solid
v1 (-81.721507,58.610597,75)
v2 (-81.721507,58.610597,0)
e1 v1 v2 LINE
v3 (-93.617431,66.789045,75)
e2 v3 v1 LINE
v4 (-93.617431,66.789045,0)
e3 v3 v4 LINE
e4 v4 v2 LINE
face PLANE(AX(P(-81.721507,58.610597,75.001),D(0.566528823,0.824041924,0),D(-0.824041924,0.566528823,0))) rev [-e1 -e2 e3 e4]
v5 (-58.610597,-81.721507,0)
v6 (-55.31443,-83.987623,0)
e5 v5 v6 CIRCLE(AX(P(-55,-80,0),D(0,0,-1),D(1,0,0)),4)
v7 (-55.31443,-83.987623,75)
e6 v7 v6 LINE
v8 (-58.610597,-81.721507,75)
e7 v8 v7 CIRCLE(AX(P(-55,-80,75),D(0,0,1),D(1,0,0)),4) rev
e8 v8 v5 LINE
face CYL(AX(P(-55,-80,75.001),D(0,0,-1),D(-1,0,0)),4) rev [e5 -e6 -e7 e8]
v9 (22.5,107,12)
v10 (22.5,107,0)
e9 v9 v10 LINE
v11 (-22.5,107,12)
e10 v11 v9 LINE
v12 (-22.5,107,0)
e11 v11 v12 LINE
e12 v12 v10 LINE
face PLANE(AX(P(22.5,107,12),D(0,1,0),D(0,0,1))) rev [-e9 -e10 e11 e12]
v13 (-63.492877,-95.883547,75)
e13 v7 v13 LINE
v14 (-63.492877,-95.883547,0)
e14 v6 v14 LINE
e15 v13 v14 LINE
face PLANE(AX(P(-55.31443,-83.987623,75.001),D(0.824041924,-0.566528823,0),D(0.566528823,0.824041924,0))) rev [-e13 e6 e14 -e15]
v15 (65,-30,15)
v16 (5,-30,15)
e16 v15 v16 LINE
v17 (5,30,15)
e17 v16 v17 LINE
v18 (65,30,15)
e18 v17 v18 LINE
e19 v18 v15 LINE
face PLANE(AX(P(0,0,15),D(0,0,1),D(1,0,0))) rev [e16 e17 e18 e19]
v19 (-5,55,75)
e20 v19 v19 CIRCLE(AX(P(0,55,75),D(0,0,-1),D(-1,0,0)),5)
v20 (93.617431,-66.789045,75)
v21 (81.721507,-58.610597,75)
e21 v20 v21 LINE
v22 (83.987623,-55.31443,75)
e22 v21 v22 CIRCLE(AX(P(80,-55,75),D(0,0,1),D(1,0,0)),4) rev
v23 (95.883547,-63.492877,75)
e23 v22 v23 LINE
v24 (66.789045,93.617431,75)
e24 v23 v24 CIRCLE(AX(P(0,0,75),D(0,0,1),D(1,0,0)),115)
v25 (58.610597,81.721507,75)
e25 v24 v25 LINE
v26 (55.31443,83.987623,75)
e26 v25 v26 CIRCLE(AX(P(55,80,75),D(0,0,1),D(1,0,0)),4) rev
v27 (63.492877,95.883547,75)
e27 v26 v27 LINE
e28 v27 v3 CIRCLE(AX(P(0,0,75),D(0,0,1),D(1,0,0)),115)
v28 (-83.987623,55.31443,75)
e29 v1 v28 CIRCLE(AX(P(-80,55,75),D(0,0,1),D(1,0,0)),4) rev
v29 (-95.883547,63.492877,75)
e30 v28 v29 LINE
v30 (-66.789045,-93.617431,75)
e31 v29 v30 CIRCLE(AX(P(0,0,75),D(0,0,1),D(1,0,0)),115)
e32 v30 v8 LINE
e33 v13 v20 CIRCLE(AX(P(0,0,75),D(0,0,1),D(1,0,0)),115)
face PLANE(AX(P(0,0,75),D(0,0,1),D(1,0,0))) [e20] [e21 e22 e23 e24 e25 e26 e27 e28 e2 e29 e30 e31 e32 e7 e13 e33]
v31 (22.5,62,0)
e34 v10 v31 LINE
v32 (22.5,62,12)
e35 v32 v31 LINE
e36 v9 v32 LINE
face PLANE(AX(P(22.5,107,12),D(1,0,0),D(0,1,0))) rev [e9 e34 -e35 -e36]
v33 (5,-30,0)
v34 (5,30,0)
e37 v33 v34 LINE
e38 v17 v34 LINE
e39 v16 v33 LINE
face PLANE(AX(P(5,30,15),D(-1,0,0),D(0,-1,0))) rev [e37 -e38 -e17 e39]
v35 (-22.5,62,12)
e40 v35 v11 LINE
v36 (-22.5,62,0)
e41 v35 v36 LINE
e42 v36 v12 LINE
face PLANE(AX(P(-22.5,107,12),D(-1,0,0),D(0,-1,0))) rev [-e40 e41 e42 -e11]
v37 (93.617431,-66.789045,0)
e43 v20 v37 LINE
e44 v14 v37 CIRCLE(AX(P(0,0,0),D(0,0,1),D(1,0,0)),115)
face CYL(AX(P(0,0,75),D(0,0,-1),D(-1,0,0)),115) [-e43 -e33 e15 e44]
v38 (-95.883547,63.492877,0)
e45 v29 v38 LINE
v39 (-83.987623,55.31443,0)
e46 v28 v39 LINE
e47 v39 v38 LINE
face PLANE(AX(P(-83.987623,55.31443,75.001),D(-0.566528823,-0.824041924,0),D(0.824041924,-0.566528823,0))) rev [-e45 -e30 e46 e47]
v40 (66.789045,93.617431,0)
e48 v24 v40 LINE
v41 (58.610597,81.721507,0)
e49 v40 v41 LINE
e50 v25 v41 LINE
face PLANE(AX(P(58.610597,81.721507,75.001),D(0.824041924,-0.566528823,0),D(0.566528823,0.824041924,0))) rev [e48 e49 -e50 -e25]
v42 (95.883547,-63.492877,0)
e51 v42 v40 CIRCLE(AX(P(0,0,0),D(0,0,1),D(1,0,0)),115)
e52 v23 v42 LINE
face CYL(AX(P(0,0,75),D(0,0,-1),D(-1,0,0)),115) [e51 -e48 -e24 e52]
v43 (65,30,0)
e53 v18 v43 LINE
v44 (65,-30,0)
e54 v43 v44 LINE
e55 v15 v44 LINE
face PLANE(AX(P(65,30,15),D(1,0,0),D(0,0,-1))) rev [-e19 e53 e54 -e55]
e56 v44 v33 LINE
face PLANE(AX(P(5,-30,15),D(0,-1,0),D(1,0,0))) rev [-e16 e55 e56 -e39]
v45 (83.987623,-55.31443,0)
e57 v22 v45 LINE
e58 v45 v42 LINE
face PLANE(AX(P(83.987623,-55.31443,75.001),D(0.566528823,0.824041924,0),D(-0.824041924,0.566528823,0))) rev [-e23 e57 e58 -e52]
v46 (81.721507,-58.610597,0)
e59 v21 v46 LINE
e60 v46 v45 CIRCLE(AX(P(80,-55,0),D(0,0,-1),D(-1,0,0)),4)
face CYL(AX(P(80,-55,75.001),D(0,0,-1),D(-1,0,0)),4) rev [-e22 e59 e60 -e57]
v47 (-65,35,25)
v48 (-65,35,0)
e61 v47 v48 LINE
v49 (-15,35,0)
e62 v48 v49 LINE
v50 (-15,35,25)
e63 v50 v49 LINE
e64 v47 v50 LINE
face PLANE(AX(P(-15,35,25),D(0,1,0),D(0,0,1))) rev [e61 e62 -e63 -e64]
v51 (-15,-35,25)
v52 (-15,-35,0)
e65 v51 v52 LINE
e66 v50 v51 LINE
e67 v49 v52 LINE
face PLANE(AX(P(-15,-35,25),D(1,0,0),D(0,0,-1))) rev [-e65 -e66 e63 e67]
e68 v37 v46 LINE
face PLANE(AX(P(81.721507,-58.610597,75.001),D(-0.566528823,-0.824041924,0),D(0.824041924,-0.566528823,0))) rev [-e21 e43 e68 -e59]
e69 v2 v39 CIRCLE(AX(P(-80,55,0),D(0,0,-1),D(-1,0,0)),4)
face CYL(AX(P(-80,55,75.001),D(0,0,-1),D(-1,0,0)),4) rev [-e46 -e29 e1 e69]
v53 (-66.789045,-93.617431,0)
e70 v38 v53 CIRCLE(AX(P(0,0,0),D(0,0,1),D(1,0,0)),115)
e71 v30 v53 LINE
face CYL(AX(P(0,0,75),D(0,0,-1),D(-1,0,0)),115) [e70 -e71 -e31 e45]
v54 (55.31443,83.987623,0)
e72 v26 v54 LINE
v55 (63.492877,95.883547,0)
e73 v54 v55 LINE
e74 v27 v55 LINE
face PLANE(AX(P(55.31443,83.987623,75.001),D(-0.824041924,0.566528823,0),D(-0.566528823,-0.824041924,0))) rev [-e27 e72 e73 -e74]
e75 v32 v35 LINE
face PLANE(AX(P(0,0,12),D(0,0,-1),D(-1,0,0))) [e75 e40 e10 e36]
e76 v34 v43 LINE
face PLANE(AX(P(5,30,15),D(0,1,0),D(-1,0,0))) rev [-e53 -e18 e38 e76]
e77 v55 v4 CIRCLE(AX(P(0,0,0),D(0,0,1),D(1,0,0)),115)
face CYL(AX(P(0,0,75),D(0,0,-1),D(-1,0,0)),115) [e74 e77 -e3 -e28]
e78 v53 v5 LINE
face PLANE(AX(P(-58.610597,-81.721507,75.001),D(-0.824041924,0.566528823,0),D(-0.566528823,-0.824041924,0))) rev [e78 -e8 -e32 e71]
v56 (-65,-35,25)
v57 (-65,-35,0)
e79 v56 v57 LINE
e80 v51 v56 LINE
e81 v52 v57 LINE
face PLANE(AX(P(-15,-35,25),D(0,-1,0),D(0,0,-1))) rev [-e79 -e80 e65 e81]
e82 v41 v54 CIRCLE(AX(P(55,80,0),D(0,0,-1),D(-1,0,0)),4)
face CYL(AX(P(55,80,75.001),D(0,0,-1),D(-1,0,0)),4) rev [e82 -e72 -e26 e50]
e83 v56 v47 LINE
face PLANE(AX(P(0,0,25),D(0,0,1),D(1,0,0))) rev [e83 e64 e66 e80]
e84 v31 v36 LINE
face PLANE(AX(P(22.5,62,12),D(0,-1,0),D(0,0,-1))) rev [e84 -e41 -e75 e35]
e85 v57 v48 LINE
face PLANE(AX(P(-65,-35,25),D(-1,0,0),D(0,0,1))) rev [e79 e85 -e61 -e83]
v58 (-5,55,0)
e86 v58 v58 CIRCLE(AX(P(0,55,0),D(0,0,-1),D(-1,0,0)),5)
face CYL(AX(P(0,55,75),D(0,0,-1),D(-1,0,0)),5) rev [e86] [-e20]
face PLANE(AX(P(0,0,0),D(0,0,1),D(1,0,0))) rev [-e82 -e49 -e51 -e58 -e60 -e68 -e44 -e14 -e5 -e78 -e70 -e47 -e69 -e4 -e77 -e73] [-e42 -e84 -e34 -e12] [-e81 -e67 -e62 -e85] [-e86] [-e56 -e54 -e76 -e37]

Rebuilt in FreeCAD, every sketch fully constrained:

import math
import FreeCAD as App
import Part
import Sketcher
from FreeCAD import Vector

doc = App.newDocument("Part")
body = doc.addObject("PartDesign::Body", "Body")

# Sketch on XY plane
sketch1 = body.newObject("Sketcher::SketchObject", "Sketch")
sketch1.AttachmentSupport = (doc.getObject("XY_Plane"), [""])
sketch1.MapMode = "FlatFace"
sketch1.addGeometry(Part.Circle(Vector(0, 0, 0), Vector(0, 0, 1), 115), False)
sketch1.addConstraint([
    Sketcher.Constraint("Coincident", 0, 3, -1, 1),
    Sketcher.Constraint("Diameter", 0, 230.0),
])
pad1 = body.newObject("PartDesign::Pad", "Pad")
pad1.Profile = sketch1
pad1.Length = 75

# Sketch on XY plane
sketch2 = body.newObject("Sketcher::SketchObject", "Sketch001")
sketch2.AttachmentSupport = (doc.getObject("XY_Plane"), [""])
sketch2.MapMode = "FlatFace"
sketch2.addGeometry([
    Part.LineSegment(Vector(-66.8, -93.6, 0), Vector(-58.6, -81.7, 0)),
    Part.ArcOfCircle(Part.Circle(Vector(-55, -80, 0), Vector(0, 0, 1), 4), math.radians(-95), math.radians(205)),
    Part.LineSegment(Vector(-55.3, -84, 0), Vector(-63.5, -95.9, 0)),
    Part.ArcOfCircle(Part.Circle(Vector(0, 0, 0), Vector(0, 0, 1), 115), math.radians(-125.51), math.radians(-123.51)),
], False)
sketch2.addConstraint([
    Sketcher.Constraint("Coincident", 0, 2, 1, 2),
    Sketcher.Constraint("Coincident", 1, 1, 2, 1),
    Sketcher.Constraint("Coincident", 2, 2, 3, 2),
    Sketcher.Constraint("Coincident", 3, 1, 0, 1),
    Sketcher.Constraint("Coincident", 3, 3, -1, 1),
    Sketcher.Constraint("Parallel", 0, 2),
    Sketcher.Constraint("Equal", 0, 2),
    Sketcher.Constraint("Radius", 1, 4.0),
    Sketcher.Constraint("DistanceX", 1, 3, -1, 1, 55.0),
    Sketcher.Constraint("DistanceY", 1, 3, -1, 1, 80.0),
    Sketcher.Constraint("Radius", 3, 114.999998),
    Sketcher.Constraint("DistanceX", 1, 1, -1, 1, 55.31443),
    Sketcher.Constraint("DistanceY", 3, 1, -1, 1, 93.617431),
])
pocket1 = body.newObject("PartDesign::Pocket", "Pocket")
pocket1.Profile = sketch2
pocket1.Type = "UpToFirst"
pocket1.Reversed = True

# Sketch on XY plane
sketch3 = body.newObject("Sketcher::SketchObject", "Sketch002")
sketch3.AttachmentSupport = (doc.getObject("XY_Plane"), [""])
sketch3.MapMode = "FlatFace"
sketch3.addGeometry([
    Part.LineSegment(Vector(-93.6, 66.8, 0), Vector(-81.7, 58.6, 0)),
    Part.ArcOfCircle(Part.Circle(Vector(-80, 55, 0), Vector(0, 0, 1), 4), math.radians(175), math.radians(475)),
    Part.LineSegment(Vector(-84, 55.3, 0), Vector(-95.9, 63.5, 0)),
    Part.ArcOfCircle(Part.Circle(Vector(0, 0, 0), Vector(0, 0, 1), 115), math.radians(144.49), math.radians(146.49)),
], False)
sketch3.addConstraint([
    Sketcher.Constraint("Coincident", 0, 2, 1, 2),
    Sketcher.Constraint("Coincident", 1, 1, 2, 1),
    Sketcher.Constraint("Coincident", 2, 2, 3, 2),
    Sketcher.Constraint("Coincident", 3, 1, 0, 1),
    Sketcher.Constraint("Coincident", 3, 3, -1, 1),
    Sketcher.Constraint("Parallel", 0, 2),
    Sketcher.Constraint("Equal", 0, 2),
    Sketcher.Constraint("Radius", 1, 4.0),
    Sketcher.Constraint("DistanceX", 1, 3, -1, 1, 80.0),
    Sketcher.Constraint("DistanceY", -1, 1, 1, 3, 55.0),
    Sketcher.Constraint("Radius", 3, 114.999998),
    Sketcher.Constraint("DistanceY", -1, 1, 1, 1, 55.31443),
    Sketcher.Constraint("DistanceX", 3, 1, -1, 1, 93.617431),
])
pocket2 = body.newObject("PartDesign::Pocket", "Pocket001")
pocket2.Profile = sketch3
pocket2.Type = "UpToFirst"
pocket2.Reversed = True

# Sketch on XY plane
sketch4 = body.newObject("Sketcher::SketchObject", "Sketch003")
sketch4.AttachmentSupport = (doc.getObject("XY_Plane"), [""])
sketch4.MapMode = "FlatFace"
sketch4.addGeometry([
    Part.LineSegment(Vector(66.8, 93.6, 0), Vector(58.6, 81.7, 0)),
    Part.ArcOfCircle(Part.Circle(Vector(55, 80, 0), Vector(0, 0, 1), 4), math.radians(85), math.radians(385)),
    Part.LineSegment(Vector(55.3, 84, 0), Vector(63.5, 95.9, 0)),
    Part.ArcOfCircle(Part.Circle(Vector(0, 0, 0), Vector(0, 0, 1), 115), math.radians(54.49), math.radians(56.49)),
], False)
sketch4.addConstraint([
    Sketcher.Constraint("Coincident", 0, 2, 1, 2),
    Sketcher.Constraint("Coincident", 1, 1, 2, 1),
    Sketcher.Constraint("Coincident", 2, 2, 3, 2),
    Sketcher.Constraint("Coincident", 3, 1, 0, 1),
    Sketcher.Constraint("Coincident", 3, 3, -1, 1),
    Sketcher.Constraint("Parallel", 0, 2),
    Sketcher.Constraint("Equal", 0, 2),
    Sketcher.Constraint("Radius", 1, 4.0),
    Sketcher.Constraint("DistanceX", -1, 1, 1, 3, 55.0),
    Sketcher.Constraint("DistanceY", -1, 1, 1, 3, 80.0),
    Sketcher.Constraint("Radius", 3, 114.999998),
    Sketcher.Constraint("DistanceX", -1, 1, 1, 1, 55.31443),
    Sketcher.Constraint("DistanceY", -1, 1, 3, 1, 93.617431),
])
pocket3 = body.newObject("PartDesign::Pocket", "Pocket002")
pocket3.Profile = sketch4
pocket3.Type = "UpToFirst"
pocket3.Reversed = True

# Sketch on XY plane
sketch5 = body.newObject("Sketcher::SketchObject", "Sketch004")
sketch5.AttachmentSupport = (doc.getObject("XY_Plane"), [""])
sketch5.MapMode = "FlatFace"
sketch5.addGeometry([
    Part.LineSegment(Vector(93.6, -66.8, 0), Vector(81.7, -58.6, 0)),
    Part.ArcOfCircle(Part.Circle(Vector(80, -55, 0), Vector(0, 0, 1), 4), math.radians(-5), math.radians(295)),
    Part.LineSegment(Vector(84, -55.3, 0), Vector(95.9, -63.5, 0)),
    Part.ArcOfCircle(Part.Circle(Vector(0, 0, 0), Vector(0, 0, 1), 115), math.radians(-35.51), math.radians(-33.51)),
], False)
sketch5.addConstraint([
    Sketcher.Constraint("Coincident", 0, 2, 1, 2),
    Sketcher.Constraint("Coincident", 1, 1, 2, 1),
    Sketcher.Constraint("Coincident", 2, 2, 3, 2),
    Sketcher.Constraint("Coincident", 3, 1, 0, 1),
    Sketcher.Constraint("Coincident", 3, 3, -1, 1),
    Sketcher.Constraint("Parallel", 0, 2),
    Sketcher.Constraint("Equal", 0, 2),
    Sketcher.Constraint("Radius", 1, 4.0),
    Sketcher.Constraint("DistanceX", -1, 1, 1, 3, 80.0),
    Sketcher.Constraint("DistanceY", 1, 3, -1, 1, 55.0),
    Sketcher.Constraint("Radius", 3, 114.999998),
    Sketcher.Constraint("DistanceY", 1, 1, -1, 1, 55.31443),
    Sketcher.Constraint("DistanceX", -1, 1, 3, 1, 93.617431),
])
pocket4 = body.newObject("PartDesign::Pocket", "Pocket003")
pocket4.Profile = sketch5
pocket4.Type = "UpToFirst"
pocket4.Reversed = True

# Sketch on XY plane
sketch6 = body.newObject("Sketcher::SketchObject", "Sketch005")
sketch6.AttachmentSupport = (doc.getObject("XY_Plane"), [""])
sketch6.MapMode = "FlatFace"
sketch6.addGeometry([
    Part.LineSegment(Vector(65, 30, 0), Vector(65, -30, 0)),
    Part.LineSegment(Vector(65, -30, 0), Vector(5, -30, 0)),
    Part.LineSegment(Vector(5, -30, 0), Vector(5, 30, 0)),
    Part.LineSegment(Vector(5, 30, 0), Vector(65, 30, 0)),
], False)
sketch6.addConstraint([
    Sketcher.Constraint("Coincident", 0, 2, 1, 1),
    Sketcher.Constraint("Coincident", 1, 2, 2, 1),
    Sketcher.Constraint("Coincident", 2, 2, 3, 1),
    Sketcher.Constraint("Coincident", 3, 2, 0, 1),
    Sketcher.Constraint("Vertical", 0),
    Sketcher.Constraint("Horizontal", 1),
    Sketcher.Constraint("Vertical", 2),
    Sketcher.Constraint("Horizontal", 3),
    Sketcher.Constraint("Equal", 3, 0),
    Sketcher.Constraint("DistanceX", 1, 2, 1, 1, 60.0),
    Sketcher.Constraint("DistanceX", -1, 1, 0, 2, 65.0),
    Sketcher.Constraint("DistanceY", 0, 2, -1, 1, 30.0),
])
pocket5 = body.newObject("PartDesign::Pocket", "Pocket004")
pocket5.Profile = sketch6
pocket5.Length = 15
pocket5.Reversed = True

# Sketch on XY plane
sketch7 = body.newObject("Sketcher::SketchObject", "Sketch006")
sketch7.AttachmentSupport = (doc.getObject("XY_Plane"), [""])
sketch7.MapMode = "FlatFace"
sketch7.addGeometry([
    Part.LineSegment(Vector(-15, 35, 0), Vector(-15, -35, 0)),
    Part.LineSegment(Vector(-15, -35, 0), Vector(-65, -35, 0)),
    Part.LineSegment(Vector(-65, -35, 0), Vector(-65, 35, 0)),
    Part.LineSegment(Vector(-65, 35, 0), Vector(-15, 35, 0)),
], False)
sketch7.addConstraint([
    Sketcher.Constraint("Coincident", 0, 2, 1, 1),
    Sketcher.Constraint("Coincident", 1, 2, 2, 1),
    Sketcher.Constraint("Coincident", 2, 2, 3, 1),
    Sketcher.Constraint("Coincident", 3, 2, 0, 1),
    Sketcher.Constraint("Vertical", 0),
    Sketcher.Constraint("Horizontal", 1),
    Sketcher.Constraint("Vertical", 2),
    Sketcher.Constraint("Horizontal", 3),
    Sketcher.Constraint("DistanceX", 1, 2, 1, 1, 50.0),
    Sketcher.Constraint("DistanceY", 0, 2, 0, 1, 70.0),
    Sketcher.Constraint("DistanceX", 0, 2, -1, 1, 15.0),
    Sketcher.Constraint("DistanceY", 0, 2, -1, 1, 35.0),
])
pocket6 = body.newObject("PartDesign::Pocket", "Pocket005")
pocket6.Profile = sketch7
pocket6.Length = 25
pocket6.Reversed = True

# Sketch on XY plane
sketch8 = body.newObject("Sketcher::SketchObject", "Sketch007")
sketch8.AttachmentSupport = (doc.getObject("XY_Plane"), [""])
sketch8.MapMode = "FlatFace"
sketch8.addGeometry(Part.Circle(Vector(0, 55, 0), Vector(0, 0, 1), 5), False)
sketch8.addConstraint([
    Sketcher.Constraint("PointOnObject", 0, 3, -2),
    Sketcher.Constraint("Diameter", 0, 10.0),
    Sketcher.Constraint("DistanceY", -1, 1, 0, 3, 55.0),
])
pocket7 = body.newObject("PartDesign::Pocket", "Pocket006")
pocket7.Profile = sketch8
pocket7.Type = "ThroughAll"
pocket7.Reversed = True

# Sketch on XY plane
sketch9 = body.newObject("Sketcher::SketchObject", "Sketch008")
sketch9.AttachmentSupport = (doc.getObject("XY_Plane"), [""])
sketch9.MapMode = "FlatFace"
sketch9.addGeometry([
    Part.LineSegment(Vector(22, 107, 0), Vector(22, 62, 0)),
    Part.LineSegment(Vector(22, 62, 0), Vector(-22, 62, 0)),
    Part.LineSegment(Vector(-22, 62, 0), Vector(-22, 107, 0)),
    Part.LineSegment(Vector(-22, 107, 0), Vector(22, 107, 0)),
], False)
sketch9.addConstraint([
    Sketcher.Constraint("Coincident", 0, 2, 1, 1),
    Sketcher.Constraint("Coincident", 1, 2, 2, 1),
    Sketcher.Constraint("Coincident", 2, 2, 3, 1),
    Sketcher.Constraint("Coincident", 3, 2, 0, 1),
    Sketcher.Constraint("Vertical", 0),
    Sketcher.Constraint("Horizontal", 1),
    Sketcher.Constraint("Vertical", 2),
    Sketcher.Constraint("Horizontal", 3),
    Sketcher.Constraint("Equal", 3, 0),
    Sketcher.Constraint("DistanceX", 1, 2, 1, 1, 45.0),
    Sketcher.Constraint("DistanceY", -1, 1, 0, 2, 62.0),
    Sketcher.Constraint("DistanceX", -1, 1, 0, 2, 22.5),
])
pocket8 = body.newObject("PartDesign::Pocket", "Pocket007")
pocket8.Profile = sketch9
pocket8.Length = 12
pocket8.Reversed = True

doc.recompute()
